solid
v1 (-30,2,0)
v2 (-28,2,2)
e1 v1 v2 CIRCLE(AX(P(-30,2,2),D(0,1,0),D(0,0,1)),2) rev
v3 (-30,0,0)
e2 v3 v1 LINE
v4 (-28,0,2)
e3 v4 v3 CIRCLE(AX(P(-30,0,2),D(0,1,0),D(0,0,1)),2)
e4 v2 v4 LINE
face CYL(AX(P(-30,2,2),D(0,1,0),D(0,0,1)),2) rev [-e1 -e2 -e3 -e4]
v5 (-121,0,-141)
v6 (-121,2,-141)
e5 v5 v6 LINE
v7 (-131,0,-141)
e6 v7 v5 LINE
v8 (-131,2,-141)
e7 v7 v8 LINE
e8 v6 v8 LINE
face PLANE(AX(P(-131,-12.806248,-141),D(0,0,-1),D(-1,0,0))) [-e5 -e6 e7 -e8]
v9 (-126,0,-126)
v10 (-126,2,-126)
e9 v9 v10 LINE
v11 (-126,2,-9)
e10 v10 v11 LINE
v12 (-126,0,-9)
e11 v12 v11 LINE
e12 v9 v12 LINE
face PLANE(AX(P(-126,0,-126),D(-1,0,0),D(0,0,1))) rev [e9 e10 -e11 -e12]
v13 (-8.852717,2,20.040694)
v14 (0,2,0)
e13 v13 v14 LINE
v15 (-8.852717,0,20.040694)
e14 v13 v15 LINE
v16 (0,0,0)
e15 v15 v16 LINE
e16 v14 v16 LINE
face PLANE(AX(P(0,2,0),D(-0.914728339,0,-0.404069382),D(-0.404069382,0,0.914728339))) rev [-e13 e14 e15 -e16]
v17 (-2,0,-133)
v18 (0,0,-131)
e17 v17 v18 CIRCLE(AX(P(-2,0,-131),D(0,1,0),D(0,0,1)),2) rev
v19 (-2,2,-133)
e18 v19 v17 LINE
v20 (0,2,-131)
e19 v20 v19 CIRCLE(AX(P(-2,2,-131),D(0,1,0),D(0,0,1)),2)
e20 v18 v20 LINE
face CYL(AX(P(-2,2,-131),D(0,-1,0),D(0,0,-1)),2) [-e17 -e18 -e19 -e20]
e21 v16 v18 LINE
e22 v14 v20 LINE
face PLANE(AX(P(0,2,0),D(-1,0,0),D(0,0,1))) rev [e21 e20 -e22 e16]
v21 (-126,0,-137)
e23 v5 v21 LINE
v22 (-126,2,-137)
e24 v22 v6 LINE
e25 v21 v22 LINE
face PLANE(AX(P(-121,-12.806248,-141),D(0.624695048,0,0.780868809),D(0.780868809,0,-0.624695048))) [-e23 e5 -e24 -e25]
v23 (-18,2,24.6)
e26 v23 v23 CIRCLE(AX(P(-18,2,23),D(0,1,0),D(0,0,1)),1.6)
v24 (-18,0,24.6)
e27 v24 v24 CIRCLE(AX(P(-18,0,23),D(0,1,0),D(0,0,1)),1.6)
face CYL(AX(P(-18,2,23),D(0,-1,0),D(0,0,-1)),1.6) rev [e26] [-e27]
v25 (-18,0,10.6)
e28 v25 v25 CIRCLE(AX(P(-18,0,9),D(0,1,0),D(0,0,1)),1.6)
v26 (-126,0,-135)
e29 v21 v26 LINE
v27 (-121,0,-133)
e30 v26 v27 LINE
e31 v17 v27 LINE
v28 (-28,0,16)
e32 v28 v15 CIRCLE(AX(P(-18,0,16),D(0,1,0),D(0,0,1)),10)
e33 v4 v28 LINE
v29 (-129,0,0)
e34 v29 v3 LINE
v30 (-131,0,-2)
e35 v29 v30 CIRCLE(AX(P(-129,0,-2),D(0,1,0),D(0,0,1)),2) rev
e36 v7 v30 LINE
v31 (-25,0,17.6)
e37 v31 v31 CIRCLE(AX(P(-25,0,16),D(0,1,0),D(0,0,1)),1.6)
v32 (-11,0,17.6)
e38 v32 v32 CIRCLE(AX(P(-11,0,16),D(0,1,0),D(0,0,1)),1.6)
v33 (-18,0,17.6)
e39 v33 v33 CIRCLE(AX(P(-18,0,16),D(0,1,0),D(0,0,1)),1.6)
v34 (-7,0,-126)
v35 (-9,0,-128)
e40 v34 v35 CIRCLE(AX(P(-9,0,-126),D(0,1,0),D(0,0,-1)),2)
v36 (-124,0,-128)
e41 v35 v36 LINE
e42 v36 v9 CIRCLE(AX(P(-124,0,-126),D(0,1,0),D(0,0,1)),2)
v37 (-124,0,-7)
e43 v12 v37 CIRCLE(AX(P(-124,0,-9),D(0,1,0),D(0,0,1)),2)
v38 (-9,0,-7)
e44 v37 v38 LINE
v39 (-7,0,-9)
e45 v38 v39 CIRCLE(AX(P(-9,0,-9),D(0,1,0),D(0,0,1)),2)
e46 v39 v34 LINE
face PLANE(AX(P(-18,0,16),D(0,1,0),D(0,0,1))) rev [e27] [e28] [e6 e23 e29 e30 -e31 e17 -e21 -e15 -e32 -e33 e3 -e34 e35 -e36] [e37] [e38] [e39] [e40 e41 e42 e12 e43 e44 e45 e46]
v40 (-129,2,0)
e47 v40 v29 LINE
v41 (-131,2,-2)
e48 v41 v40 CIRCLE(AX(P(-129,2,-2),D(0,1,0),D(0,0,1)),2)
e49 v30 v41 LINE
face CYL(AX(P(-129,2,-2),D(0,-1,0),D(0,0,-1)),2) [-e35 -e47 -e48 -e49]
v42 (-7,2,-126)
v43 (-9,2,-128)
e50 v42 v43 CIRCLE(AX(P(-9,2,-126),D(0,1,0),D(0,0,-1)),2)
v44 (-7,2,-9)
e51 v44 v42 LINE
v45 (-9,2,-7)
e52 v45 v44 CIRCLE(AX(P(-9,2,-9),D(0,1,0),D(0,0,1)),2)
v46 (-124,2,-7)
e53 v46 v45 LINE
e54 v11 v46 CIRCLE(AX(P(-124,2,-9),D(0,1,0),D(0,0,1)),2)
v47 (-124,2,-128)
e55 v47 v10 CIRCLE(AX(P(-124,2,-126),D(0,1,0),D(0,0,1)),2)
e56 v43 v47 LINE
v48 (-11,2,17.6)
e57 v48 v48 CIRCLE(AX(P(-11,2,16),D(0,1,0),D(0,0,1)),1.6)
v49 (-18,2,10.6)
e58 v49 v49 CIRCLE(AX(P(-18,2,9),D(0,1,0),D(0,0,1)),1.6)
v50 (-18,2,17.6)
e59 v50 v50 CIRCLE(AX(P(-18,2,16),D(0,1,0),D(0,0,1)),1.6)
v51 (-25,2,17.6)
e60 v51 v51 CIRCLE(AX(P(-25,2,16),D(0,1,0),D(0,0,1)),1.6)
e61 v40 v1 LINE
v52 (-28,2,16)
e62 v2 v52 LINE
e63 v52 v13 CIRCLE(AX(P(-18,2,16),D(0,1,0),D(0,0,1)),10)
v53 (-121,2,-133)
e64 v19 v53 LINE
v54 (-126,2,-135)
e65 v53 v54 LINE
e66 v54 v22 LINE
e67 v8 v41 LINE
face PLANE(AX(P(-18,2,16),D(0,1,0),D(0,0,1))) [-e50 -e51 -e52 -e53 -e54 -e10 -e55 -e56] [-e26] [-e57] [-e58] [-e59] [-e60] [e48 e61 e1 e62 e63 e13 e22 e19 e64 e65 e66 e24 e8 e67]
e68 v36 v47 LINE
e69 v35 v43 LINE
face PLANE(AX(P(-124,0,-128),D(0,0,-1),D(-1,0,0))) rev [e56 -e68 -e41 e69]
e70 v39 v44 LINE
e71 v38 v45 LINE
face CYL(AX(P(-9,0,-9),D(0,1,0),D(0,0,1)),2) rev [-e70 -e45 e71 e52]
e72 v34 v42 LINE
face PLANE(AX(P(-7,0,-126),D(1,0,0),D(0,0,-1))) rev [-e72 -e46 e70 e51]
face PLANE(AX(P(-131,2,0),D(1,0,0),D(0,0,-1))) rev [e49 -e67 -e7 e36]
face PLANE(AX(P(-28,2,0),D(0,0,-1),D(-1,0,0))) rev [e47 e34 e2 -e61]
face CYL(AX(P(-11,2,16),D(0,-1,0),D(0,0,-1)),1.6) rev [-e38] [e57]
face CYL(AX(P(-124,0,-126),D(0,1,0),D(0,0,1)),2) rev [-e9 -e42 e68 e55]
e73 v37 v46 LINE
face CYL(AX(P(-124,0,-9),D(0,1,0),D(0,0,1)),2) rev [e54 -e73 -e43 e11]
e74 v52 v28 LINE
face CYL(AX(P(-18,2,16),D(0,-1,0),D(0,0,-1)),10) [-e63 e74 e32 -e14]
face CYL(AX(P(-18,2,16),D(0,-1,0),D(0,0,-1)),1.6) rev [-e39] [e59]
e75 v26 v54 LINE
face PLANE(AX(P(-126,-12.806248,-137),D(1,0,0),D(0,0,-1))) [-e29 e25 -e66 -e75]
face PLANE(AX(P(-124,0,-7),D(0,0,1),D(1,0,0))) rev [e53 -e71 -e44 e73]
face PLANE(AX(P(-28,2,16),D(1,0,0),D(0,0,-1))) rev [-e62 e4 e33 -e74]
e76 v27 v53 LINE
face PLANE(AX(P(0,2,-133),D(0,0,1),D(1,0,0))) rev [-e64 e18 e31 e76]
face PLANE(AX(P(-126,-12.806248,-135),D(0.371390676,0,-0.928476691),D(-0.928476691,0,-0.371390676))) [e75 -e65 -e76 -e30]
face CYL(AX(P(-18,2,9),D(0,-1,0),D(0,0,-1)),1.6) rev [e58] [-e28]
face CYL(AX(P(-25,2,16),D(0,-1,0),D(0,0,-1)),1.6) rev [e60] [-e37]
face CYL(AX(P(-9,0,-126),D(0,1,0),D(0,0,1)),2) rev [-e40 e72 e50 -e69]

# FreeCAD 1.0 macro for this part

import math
import FreeCAD as App
import Part
import Sketcher

V = App.Vector


def edges_at(feature, points):
    """Names of the edges that pass closest to the given points."""
    edges = feature.Shape.Edges
    near = lambda p: min(range(len(edges)), key=lambda i: edges[i].distToShape(Part.Vertex(*p))[0])
    return sorted({f"Edge{near(p) + 1}" for p in points})


def add_polygon(sketch, points):
    """Adds a closed chain of lines whose ends are joined by coincident constraints."""
    first, n = sketch.GeometryCount, len(points)
    for a, b in zip(points, points[1:] + points[:1]):
        sketch.addGeometry(Part.LineSegment(App.Vector(*a, 0), App.Vector(*b, 0)), False)
    for i in range(n):
        sketch.addConstraint(Sketcher.Constraint("Coincident", first + i, 2, first + (i + 1) % n, 1))

doc = App.newDocument("Part")
body = doc.addObject("PartDesign::Body", "Body")

# Sketch on XZ plane
sketch1 = body.newObject("Sketcher::SketchObject", "Sketch")
sketch1.AttachmentSupport = (doc.getObject("XZ_Plane"), [""])
sketch1.MapMode = "FlatFace"
sketch1.addGeometry([
    Part.LineSegment(V(-28, 0, 0), V(-28, 16, 0)),  # 0
    Part.ArcOfCircle(Part.Circle(V(-18, 16, 0), V(0, 0, 1), 10), math.radians(24), math.radians(180)),  # 1
    Part.LineSegment(V(-8.9, 20, 0), V(0, 0, 0)),  # 2
    Part.LineSegment(V(0, 0, 0), V(0, -133, 0)),  # 3
    Part.LineSegment(V(0, -133, 0), V(-131, -133, 0)),  # 4
    Part.LineSegment(V(-131, -133, 0), V(-131, 0, 0)),  # 5
    Part.LineSegment(V(-131, 0, 0), V(-28, 0, 0)),  # 6
    Part.Circle(V(-18, 23, 0), V(0, 0, 1), 1.6),  # 7
    Part.Circle(V(-11, 16, 0), V(0, 0, 1), 1.6),  # 8
    Part.Circle(V(-18, 16, 0), V(0, 0, 1), 1.6),  # 9
    Part.Circle(V(-25, 16, 0), V(0, 0, 1), 1.6),  # 10
    Part.Circle(V(-18, 9, 0), V(0, 0, 1), 1.6),  # 11
], False)
sketch1.addConstraint([
    Sketcher.Constraint("Tangent", 0, 2, 1, 2),
    Sketcher.Constraint("Tangent", 1, 1, 2, 1),
    Sketcher.Constraint("Coincident", 2, 2, 3, 1),
    Sketcher.Constraint("Coincident", 3, 2, 4, 1),
    Sketcher.Constraint("Coincident", 4, 2, 5, 1),
    Sketcher.Constraint("Coincident", 5, 2, 6, 1),
    Sketcher.Constraint("Coincident", 6, 2, 0, 1),
    Sketcher.Constraint("Vertical", 0),
    Sketcher.Constraint("Vertical", 3),
    Sketcher.Constraint("Horizontal", 4),
    Sketcher.Constraint("Vertical", 5),
    Sketcher.Constraint("Horizontal", 6),
    Sketcher.Constraint("Coincident", 2, 2, -1, 1),
    Sketcher.Constraint("Coincident", 9, 3, 1, 3),
    Sketcher.Constraint("Equal", 7, 8),
    Sketcher.Constraint("Equal", 8, 9),
    Sketcher.Constraint("Equal", 9, 10),
    Sketcher.Constraint("Equal", 10, 11),
    Sketcher.Constraint("PointOnObject", 5, 2, -1),
    Sketcher.Constraint("Horizontal", 1, 3, 8, 3),
    Sketcher.Constraint("Horizontal", 9, 3, 10, 3),
    Sketcher.Constraint("Vertical", 1, 3, 7, 3),
    Sketcher.Constraint("Vertical", 9, 3, 11, 3),
    Sketcher.Constraint("Radius", 1, 10.0),
    Sketcher.Constraint("Diameter", 7, 3.2),
    Sketcher.Constraint("DistanceX", 4, 2, 4, 1, 131.0),
    Sketcher.Constraint("DistanceX", 6, 1, 6, 2, 103.0),
    Sketcher.Constraint("DistanceY", 0, 1, 0, 2, 16.0),
    Sketcher.Constraint("DistanceY", 3, 2, 3, 1, 133.0),
    Sketcher.Constraint("DistanceY", -1, 1, 7, 3, 23.0),
    Sketcher.Constraint("DistanceX", 8, 3, -1, 1, 11.0),
    Sketcher.Constraint("DistanceX", 10, 3, -1, 1, 25.0),
    Sketcher.Constraint("DistanceY", -1, 1, 11, 3, 9.0),
])
pad1 = body.newObject("PartDesign::Pad", "Pad")
pad1.Profile = sketch1
pad1.Length = 2
pad1.Reversed = True

# Sketch on XZ plane
sketch2 = body.newObject("Sketcher::SketchObject", "Sketch001")
sketch2.AttachmentSupport = (doc.getObject("XZ_Plane"), [""])
sketch2.MapMode = "FlatFace"
sketch2.AttachmentOffset = App.Placement(V(0, 0, -2), App.Rotation())
add_polygon(sketch2, [(-131, -141), (-131, -133), (-121, -133), (-126, -135), (-126, -137), (-121, -141)])  # lines 0-5
sketch2.addConstraint([
    Sketcher.Constraint("Vertical", 0),
    Sketcher.Constraint("Horizontal", 1),
    Sketcher.Constraint("Vertical", 3),
    Sketcher.Constraint("Horizontal", 5),
    Sketcher.Constraint("Vertical", 1, 2, 4, 2),
    Sketcher.Constraint("DistanceX", 1, 1, 1, 2, 10.0),
    Sketcher.Constraint("DistanceY", 0, 1, 0, 2, 8.0),
    Sketcher.Constraint("DistanceY", 3, 2, 3, 1, 2.0),
    Sketcher.Constraint("DistanceX", 0, 2, -1, 1, 131.0),
    Sketcher.Constraint("DistanceY", 0, 2, -1, 1, 133.0),
    Sketcher.Constraint("DistanceX", 2, 2, -1, 1, 126.0),
    Sketcher.Constraint("DistanceY", 2, 2, -1, 1, 135.0),
])
pad2 = body.newObject("PartDesign::Pad", "Pad001")
pad2.Profile = sketch2
pad2.Length = 2

# Sketch on XZ plane
sketch3 = body.newObject("Sketcher::SketchObject", "Sketch002")
sketch3.AttachmentSupport = (doc.getObject("XZ_Plane"), [""])
sketch3.MapMode = "FlatFace"
sketch3.AttachmentOffset = App.Placement(V(0, 0, -2), App.Rotation())
sketch3.addGeometry([
    Part.LineSegment(V(-9, -128, 0), V(-124, -128, 0)),  # 0
    Part.ArcOfCircle(Part.Circle(V(-124, -126, 0), V(0, 0, 1), 2), math.radians(-180), math.radians(-90)),  # 1
    Part.LineSegment(V(-126, -126, 0), V(-126, -9, 0)),  # 2
    Part.ArcOfCircle(Part.Circle(V(-124, -9, 0), V(0, 0, 1), 2), math.radians(90), math.radians(180)),  # 3
    Part.LineSegment(V(-124, -7, 0), V(-9, -7, 0)),  # 4
    Part.ArcOfCircle(Part.Circle(V(-9, -9, 0), V(0, 0, 1), 2), math.radians(0), math.radians(90)),  # 5
    Part.LineSegment(V(-7, -9, 0), V(-7, -126, 0)),  # 6
    Part.ArcOfCircle(Part.Circle(V(-9, -126, 0), V(0, 0, 1), 2), math.radians(-90), math.radians(0)),  # 7
], False)
sketch3.addConstraint([
    Sketcher.Constraint("Tangent", 0, 2, 1, 2),
    Sketcher.Constraint("Tangent", 1, 1, 2, 1),
    Sketcher.Constraint("Tangent", 2, 2, 3, 2),
    Sketcher.Constraint("Tangent", 3, 1, 4, 1),
    Sketcher.Constraint("Tangent", 4, 2, 5, 2),
    Sketcher.Constraint("Tangent", 5, 1, 6, 1),
    Sketcher.Constraint("Tangent", 6, 2, 7, 2),
    Sketcher.Constraint("Tangent", 7, 1, 0, 1),
    Sketcher.Constraint("Horizontal", 0),
    Sketcher.Constraint("Vertical", 2),
    Sketcher.Constraint("Horizontal", 4),
    Sketcher.Constraint("Vertical", 6),
    Sketcher.Constraint("Equal", 1, 3),
    Sketcher.Constraint("Equal", 3, 5),
    Sketcher.Constraint("Equal", 5, 7),
    Sketcher.Constraint("Radius", 1, 2.0),
    Sketcher.Constraint("DistanceX", 0, 2, 0, 1, 115.0),
    Sketcher.Constraint("DistanceY", 2, 1, 2, 2, 117.0),
    Sketcher.Constraint("DistanceX", 1, 3, -1, 1, 124.0),
    Sketcher.Constraint("DistanceY", 1, 3, -1, 1, 126.0),
])
pocket1 = body.newObject("PartDesign::Pocket", "Pocket")
pocket1.Profile = sketch3
pocket1.Type = "ThroughAll"
pocket1.Reversed = True
doc.recompute()

fillet = body.newObject("PartDesign::Fillet", "Fillet")
fillet.Base = (pocket1, edges_at(pocket1, [(-28, 1, 0), (-131, 1, 0), (0, 1, -133)]))
fillet.Radius = 2

doc.recompute()
